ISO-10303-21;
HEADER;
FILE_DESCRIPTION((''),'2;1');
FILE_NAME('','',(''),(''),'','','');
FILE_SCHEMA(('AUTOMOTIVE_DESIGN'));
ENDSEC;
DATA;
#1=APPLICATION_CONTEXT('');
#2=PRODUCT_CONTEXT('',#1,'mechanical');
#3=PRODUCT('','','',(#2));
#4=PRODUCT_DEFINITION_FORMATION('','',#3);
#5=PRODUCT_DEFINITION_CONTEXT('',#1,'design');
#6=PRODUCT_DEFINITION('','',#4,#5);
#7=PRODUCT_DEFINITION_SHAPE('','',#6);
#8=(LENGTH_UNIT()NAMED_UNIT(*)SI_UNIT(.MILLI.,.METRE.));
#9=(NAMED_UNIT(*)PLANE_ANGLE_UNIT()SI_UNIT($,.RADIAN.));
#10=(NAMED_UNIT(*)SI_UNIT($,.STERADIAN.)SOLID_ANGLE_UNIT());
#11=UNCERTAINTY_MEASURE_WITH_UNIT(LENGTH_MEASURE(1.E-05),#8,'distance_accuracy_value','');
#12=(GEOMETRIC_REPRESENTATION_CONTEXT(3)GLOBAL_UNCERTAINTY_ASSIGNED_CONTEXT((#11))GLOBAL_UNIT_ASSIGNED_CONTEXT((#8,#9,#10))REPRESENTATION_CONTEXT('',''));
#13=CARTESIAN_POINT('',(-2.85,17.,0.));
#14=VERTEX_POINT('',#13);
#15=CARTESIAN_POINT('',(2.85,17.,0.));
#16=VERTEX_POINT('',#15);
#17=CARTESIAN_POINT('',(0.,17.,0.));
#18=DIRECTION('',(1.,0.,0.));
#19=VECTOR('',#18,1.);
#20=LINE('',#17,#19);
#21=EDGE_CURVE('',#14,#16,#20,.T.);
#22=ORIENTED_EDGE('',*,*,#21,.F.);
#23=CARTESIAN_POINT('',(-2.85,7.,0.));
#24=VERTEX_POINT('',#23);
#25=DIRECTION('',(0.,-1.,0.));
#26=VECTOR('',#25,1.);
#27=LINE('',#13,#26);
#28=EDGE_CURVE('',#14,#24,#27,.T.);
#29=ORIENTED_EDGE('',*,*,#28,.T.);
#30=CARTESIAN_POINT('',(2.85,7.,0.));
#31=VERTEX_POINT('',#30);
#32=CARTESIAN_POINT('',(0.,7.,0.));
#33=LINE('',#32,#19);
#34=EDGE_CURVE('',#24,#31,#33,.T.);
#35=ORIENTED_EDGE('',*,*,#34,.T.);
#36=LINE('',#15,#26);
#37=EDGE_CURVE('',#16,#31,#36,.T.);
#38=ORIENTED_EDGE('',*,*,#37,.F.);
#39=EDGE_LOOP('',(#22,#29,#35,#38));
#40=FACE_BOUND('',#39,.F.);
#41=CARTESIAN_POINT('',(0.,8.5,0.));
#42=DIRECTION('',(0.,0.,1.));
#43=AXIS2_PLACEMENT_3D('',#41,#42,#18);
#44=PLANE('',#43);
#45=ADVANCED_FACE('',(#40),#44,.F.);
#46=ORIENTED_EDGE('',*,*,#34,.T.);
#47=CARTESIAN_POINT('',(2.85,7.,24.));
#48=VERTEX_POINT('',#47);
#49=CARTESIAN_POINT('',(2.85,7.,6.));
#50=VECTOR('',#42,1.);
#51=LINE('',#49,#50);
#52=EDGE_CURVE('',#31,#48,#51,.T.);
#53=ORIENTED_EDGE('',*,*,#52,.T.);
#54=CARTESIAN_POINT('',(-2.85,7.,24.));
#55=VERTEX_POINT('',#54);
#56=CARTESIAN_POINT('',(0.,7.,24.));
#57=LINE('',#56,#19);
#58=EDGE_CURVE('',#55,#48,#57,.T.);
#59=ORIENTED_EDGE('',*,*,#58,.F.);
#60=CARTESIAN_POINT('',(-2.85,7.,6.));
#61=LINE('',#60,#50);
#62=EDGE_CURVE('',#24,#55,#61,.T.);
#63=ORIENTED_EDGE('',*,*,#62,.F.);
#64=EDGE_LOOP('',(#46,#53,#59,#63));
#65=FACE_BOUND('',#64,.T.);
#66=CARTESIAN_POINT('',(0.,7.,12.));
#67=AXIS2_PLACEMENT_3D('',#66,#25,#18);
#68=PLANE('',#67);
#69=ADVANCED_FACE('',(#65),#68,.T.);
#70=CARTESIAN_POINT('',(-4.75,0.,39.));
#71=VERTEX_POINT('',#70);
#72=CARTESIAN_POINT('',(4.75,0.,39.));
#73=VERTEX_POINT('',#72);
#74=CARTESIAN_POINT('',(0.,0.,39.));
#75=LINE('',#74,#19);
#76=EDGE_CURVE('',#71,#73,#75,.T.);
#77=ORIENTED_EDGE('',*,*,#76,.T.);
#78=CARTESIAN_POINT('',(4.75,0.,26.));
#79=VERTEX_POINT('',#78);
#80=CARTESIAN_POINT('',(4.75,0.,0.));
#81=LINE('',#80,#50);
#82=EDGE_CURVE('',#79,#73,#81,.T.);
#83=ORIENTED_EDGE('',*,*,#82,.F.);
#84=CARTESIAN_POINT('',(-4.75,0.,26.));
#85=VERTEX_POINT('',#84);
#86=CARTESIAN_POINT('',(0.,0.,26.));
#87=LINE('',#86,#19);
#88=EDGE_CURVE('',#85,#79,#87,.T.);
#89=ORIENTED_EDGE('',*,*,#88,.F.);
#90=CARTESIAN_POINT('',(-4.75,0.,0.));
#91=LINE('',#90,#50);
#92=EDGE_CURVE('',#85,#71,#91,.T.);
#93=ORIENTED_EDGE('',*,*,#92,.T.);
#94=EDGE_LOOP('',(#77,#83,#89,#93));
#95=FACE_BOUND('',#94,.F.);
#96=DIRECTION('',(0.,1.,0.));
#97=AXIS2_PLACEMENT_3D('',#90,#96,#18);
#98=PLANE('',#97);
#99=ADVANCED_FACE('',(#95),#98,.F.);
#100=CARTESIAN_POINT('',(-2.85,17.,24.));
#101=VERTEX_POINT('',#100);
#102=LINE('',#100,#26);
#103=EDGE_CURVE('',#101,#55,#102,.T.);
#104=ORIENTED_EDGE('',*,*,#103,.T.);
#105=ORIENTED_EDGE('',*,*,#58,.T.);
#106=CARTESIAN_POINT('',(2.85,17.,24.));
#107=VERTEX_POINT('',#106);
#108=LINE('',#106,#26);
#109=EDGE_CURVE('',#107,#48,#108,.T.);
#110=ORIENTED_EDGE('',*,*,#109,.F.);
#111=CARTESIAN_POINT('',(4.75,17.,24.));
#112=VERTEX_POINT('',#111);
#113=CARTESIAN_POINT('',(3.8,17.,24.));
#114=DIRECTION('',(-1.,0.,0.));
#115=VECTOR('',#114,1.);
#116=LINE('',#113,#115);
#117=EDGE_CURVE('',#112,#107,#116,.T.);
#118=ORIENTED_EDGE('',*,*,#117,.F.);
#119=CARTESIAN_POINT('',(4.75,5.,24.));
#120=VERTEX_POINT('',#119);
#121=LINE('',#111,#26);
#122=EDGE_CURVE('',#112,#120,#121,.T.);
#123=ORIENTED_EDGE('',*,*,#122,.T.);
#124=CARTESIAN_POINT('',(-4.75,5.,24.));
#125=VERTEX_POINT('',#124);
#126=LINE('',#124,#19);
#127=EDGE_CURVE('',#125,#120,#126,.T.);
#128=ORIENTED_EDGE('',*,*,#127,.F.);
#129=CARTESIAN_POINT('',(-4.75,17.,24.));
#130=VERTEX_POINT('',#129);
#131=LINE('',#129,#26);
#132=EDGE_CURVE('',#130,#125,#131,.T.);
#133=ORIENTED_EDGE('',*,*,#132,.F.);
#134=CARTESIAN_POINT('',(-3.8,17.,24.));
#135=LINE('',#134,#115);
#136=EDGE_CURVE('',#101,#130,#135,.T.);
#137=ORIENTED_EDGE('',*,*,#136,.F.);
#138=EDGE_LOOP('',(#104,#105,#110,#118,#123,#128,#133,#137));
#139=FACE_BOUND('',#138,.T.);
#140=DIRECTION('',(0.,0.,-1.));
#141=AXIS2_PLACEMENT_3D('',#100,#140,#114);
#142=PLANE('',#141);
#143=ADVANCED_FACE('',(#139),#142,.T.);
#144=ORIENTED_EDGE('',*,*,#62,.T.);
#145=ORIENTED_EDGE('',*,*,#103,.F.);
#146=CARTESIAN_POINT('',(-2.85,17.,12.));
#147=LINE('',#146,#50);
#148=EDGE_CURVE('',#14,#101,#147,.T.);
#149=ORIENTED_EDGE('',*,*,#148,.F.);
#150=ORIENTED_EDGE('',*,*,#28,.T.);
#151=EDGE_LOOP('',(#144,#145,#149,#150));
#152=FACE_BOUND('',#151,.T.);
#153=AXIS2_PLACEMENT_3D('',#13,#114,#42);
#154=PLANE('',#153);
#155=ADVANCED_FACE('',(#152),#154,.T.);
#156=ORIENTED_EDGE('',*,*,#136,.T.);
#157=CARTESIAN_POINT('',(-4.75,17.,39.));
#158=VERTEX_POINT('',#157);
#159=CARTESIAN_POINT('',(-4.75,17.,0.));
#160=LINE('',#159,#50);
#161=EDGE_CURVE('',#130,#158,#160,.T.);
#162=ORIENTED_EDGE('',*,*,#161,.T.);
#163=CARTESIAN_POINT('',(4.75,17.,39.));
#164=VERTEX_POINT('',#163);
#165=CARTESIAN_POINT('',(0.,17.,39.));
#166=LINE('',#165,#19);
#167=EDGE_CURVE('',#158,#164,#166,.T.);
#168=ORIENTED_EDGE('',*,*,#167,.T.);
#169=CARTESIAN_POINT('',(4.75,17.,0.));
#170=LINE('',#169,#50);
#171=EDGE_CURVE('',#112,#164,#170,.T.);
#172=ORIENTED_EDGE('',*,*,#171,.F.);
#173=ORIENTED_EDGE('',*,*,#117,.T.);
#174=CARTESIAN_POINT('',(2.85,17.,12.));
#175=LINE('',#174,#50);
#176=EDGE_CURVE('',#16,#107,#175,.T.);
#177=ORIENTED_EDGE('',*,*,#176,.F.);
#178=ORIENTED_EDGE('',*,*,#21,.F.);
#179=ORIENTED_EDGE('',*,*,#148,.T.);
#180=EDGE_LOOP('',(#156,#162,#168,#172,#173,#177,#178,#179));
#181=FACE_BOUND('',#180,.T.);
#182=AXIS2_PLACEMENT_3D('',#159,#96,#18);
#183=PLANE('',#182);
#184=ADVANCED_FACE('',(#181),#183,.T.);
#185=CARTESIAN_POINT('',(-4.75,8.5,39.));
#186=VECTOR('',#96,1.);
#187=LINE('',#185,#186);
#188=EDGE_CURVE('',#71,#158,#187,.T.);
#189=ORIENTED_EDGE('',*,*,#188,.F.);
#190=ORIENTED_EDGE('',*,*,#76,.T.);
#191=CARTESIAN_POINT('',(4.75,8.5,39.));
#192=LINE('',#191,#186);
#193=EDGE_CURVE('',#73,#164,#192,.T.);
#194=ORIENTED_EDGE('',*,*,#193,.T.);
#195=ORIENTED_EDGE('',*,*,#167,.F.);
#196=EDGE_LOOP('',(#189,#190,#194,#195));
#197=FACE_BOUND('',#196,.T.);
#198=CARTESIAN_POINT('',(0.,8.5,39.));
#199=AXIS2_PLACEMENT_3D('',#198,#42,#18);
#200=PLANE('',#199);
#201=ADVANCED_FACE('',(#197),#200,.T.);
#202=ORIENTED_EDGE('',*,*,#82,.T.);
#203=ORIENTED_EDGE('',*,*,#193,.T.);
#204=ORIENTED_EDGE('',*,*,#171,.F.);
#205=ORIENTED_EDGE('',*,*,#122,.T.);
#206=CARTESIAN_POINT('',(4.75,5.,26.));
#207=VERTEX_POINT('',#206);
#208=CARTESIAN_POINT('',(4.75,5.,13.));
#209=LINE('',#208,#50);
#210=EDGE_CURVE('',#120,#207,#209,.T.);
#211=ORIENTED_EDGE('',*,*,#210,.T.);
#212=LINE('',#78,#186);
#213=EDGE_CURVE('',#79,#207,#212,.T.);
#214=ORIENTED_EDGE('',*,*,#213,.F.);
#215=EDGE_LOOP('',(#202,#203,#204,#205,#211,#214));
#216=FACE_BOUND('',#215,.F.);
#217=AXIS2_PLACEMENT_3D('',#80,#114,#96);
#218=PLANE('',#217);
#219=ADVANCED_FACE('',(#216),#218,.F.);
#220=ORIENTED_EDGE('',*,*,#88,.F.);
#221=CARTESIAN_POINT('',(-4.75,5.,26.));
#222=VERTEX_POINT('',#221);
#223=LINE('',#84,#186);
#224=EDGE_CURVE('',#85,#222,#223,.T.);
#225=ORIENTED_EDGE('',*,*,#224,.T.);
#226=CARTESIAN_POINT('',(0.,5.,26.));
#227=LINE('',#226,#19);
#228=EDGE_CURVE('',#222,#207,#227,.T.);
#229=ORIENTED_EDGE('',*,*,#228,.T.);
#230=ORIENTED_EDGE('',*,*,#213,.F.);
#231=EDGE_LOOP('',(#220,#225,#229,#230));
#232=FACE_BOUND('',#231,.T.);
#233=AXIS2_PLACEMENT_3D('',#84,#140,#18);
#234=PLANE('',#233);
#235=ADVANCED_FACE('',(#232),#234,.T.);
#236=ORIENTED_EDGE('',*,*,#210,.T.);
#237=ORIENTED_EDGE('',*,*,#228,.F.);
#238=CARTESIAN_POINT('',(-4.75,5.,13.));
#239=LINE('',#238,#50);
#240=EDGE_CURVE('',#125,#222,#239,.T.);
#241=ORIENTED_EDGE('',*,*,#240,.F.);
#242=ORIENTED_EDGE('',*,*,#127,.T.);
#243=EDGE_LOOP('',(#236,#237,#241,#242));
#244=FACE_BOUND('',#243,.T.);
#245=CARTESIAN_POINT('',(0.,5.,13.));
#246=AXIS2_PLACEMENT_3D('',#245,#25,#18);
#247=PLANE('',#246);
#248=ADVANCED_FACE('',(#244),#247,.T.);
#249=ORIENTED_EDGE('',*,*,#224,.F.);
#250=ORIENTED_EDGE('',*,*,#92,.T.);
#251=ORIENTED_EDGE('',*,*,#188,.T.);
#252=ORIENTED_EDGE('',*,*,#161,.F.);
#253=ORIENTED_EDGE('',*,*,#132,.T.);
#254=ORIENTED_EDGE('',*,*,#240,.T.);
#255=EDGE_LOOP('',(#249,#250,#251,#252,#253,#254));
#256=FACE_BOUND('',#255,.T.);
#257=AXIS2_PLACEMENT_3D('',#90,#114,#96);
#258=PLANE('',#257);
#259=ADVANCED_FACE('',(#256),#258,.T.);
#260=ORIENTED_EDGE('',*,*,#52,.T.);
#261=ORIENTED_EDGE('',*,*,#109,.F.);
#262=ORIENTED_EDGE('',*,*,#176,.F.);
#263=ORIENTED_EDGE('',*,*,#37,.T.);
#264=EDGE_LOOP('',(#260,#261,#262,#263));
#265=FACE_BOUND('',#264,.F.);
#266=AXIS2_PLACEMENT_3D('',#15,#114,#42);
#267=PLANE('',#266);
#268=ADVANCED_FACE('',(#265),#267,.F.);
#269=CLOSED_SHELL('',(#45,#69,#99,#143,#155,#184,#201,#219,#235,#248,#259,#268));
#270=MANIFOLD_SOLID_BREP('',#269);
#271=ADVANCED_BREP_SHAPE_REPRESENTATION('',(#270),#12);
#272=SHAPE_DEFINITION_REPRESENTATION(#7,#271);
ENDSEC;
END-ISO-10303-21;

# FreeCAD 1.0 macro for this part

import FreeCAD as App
import Part
import Sketcher
from FreeCAD import Vector
Q = App.Units.Quantity


def add_polygon(sketch, points):
    """Adds a closed chain of lines whose ends are joined by coincident constraints."""
    first, n = sketch.GeometryCount, len(points)
    for a, b in zip(points, points[1:] + points[:1]):
        sketch.addGeometry(Part.LineSegment(App.Vector(*a, 0), App.Vector(*b, 0)), False)
    for i in range(n):
        sketch.addConstraint(Sketcher.Constraint("Coincident", first + i, 2, first + (i + 1) % n, 1))

doc = App.newDocument("Part")
params = doc.addObject("Spreadsheet::Sheet", "Params")
for row, (alias, value) in enumerate([
    ("sketch1_height", "17 mm"),
    ("sketch1_width", "9.5 mm"),
    ("pad1_length", "39 mm"),
    ("sketch2_height", "26 mm"),
    ("sketch2_width", "9.5 mm"),
    ("pocket1_length", "5 mm"),
    ("sketch3_height", "24 mm"),
    ("sketch3_width", "1.9 mm"),
    ("pocket2_length", "17 mm"),
    ("sketch4_height", "24 mm"),
    ("sketch4_width", "9.5 mm"),
    ("pocket3_length", "7 mm"),
], start=1):
    params.set(f"A{row}", alias)
    params.set(f"B{row}", "=" + value)
    params.setAlias(f"B{row}", alias)

body = doc.addObject("PartDesign::Body", "Body")

# Sketch on XY plane
sketch1 = body.newObject("Sketcher::SketchObject", "Sketch")
sketch1.AttachmentSupport = (doc.getObject("XY_Plane"), [""])
sketch1.MapMode = "FlatFace"
add_polygon(sketch1, [(-4.75, 17), (-4.75, 0), (4.75, 0), (4.75, 17)])  # lines 0-3
sketch1.addConstraint(Sketcher.Constraint("Vertical", 0))
sketch1.addConstraint(Sketcher.Constraint("Horizontal", 1))
sketch1.addConstraint(Sketcher.Constraint("Vertical", 2))
sketch1.addConstraint(Sketcher.Constraint("Horizontal", 3))
sketch1.addConstraint(Sketcher.Constraint("Symmetric", 0, 2, 1, 2, -1, 1))
sketch1.addConstraint(Sketcher.Constraint("DistanceY", 0, 2, 0, 1, Q("17 mm")))
sketch1.addConstraint(Sketcher.Constraint("DistanceX", 1, 1, 1, 2, Q("9.5 mm")))
sketch1.setExpression("Constraints[9]", "Params.sketch1_height")
sketch1.setExpression("Constraints[10]", "Params.sketch1_width")
pad1 = body.newObject("PartDesign::Pad", "Pad")
pad1.Profile = sketch1
pad1.setExpression("Length", "Params.pad1_length")

# Sketch on XZ plane
sketch2 = body.newObject("Sketcher::SketchObject", "Sketch001")
sketch2.AttachmentSupport = (doc.getObject("XZ_Plane"), [""])
sketch2.MapMode = "FlatFace"
add_polygon(sketch2, [(-4.75, 26), (-4.75, 0), (4.75, 0), (4.75, 26)])  # lines 0-3
sketch2.addConstraint(Sketcher.Constraint("Vertical", 0))
sketch2.addConstraint(Sketcher.Constraint("Horizontal", 1))
sketch2.addConstraint(Sketcher.Constraint("Vertical", 2))
sketch2.addConstraint(Sketcher.Constraint("Horizontal", 3))
sketch2.addConstraint(Sketcher.Constraint("Symmetric", 0, 2, 1, 2, -1, 1))
sketch2.addConstraint(Sketcher.Constraint("DistanceY", 0, 2, 0, 1, Q("26 mm")))
sketch2.addConstraint(Sketcher.Constraint("DistanceX", 1, 1, 1, 2, Q("9.5 mm")))
sketch2.setExpression("Constraints[9]", "Params.sketch2_height")
sketch2.setExpression("Constraints[10]", "Params.sketch2_width")
pocket1 = body.newObject("PartDesign::Pocket", "Pocket")
pocket1.Profile = sketch2
pocket1.setExpression("Length", "Params.pocket1_length")

# Sketch on XZ plane
sketch3 = body.newObject("Sketcher::SketchObject", "Sketch002")
sketch3.AttachmentSupport = (doc.getObject("XZ_Plane"), [""])
sketch3.MapMode = "FlatFace"
sketch3.AttachmentOffset = App.Placement(Vector(0, 0, -17), App.Rotation())
add_polygon(sketch3, [(4.75, 24), (4.75, 0), (2.85, 0), (2.85, 24)])  # lines 0-3
add_polygon(sketch3, [(-2.85, 24), (-2.85, 0), (-4.75, 0), (-4.75, 24)])  # lines 4-7
sketch3.addConstraint(Sketcher.Constraint("Vertical", 0))
sketch3.addConstraint(Sketcher.Constraint("Horizontal", 1))
sketch3.addConstraint(Sketcher.Constraint("Vertical", 2))
sketch3.addConstraint(Sketcher.Constraint("Horizontal", 3))
sketch3.addConstraint(Sketcher.Constraint("Vertical", 4))
sketch3.addConstraint(Sketcher.Constraint("Horizontal", 5))
sketch3.addConstraint(Sketcher.Constraint("Vertical", 6))
sketch3.addConstraint(Sketcher.Constraint("Horizontal", 7))
sketch3.addConstraint(Sketcher.Constraint("Symmetric", 1, 2, 4, 2, -1, 1))
sketch3.addConstraint(Sketcher.Constraint("Symmetric", 0, 2, 5, 2, -2))
sketch3.addConstraint(Sketcher.Constraint("Horizontal", 3, 2, 6, 2))
sketch3.addConstraint(Sketcher.Constraint("DistanceY", 0, 2, 0, 1, Q("24 mm")))
sketch3.addConstraint(Sketcher.Constraint("DistanceX", 1, 2, 1, 1, Q("1.9 mm")))
sketch3.addConstraint(Sketcher.Constraint("DistanceX", 4, 2, 1, 2, Q("5.7 mm")))
sketch3.setExpression("Constraints[19]", "Params.sketch3_height")
sketch3.setExpression("Constraints[20]", "Params.sketch3_width")
pocket2 = body.newObject("PartDesign::Pocket", "Pocket001")
pocket2.Profile = sketch3
pocket2.setExpression("Length", "Params.pocket2_length")
pocket2.Reversed = True

# Sketch on XZ plane
sketch4 = body.newObject("Sketcher::SketchObject", "Sketch003")
sketch4.AttachmentSupport = (doc.getObject("XZ_Plane"), [""])
sketch4.MapMode = "FlatFace"
add_polygon(sketch4, [(-4.75, 24), (-4.75, 0), (4.75, 0), (4.75, 24)])  # lines 0-3
sketch4.addConstraint(Sketcher.Constraint("Vertical", 0))
sketch4.addConstraint(Sketcher.Constraint("Horizontal", 1))
sketch4.addConstraint(Sketcher.Constraint("Vertical", 2))
sketch4.addConstraint(Sketcher.Constraint("Horizontal", 3))
sketch4.addConstraint(Sketcher.Constraint("Symmetric", 0, 2, 1, 2, -1, 1))
sketch4.addConstraint(Sketcher.Constraint("DistanceY", 0, 2, 0, 1, Q("24 mm")))
sketch4.addConstraint(Sketcher.Constraint("DistanceX", 1, 1, 1, 2, Q("9.5 mm")))
sketch4.setExpression("Constraints[9]", "Params.sketch4_height")
sketch4.setExpression("Constraints[10]", "Params.sketch4_width")
pocket3 = body.newObject("PartDesign::Pocket", "Pocket002")
pocket3.Profile = sketch4
pocket3.setExpression("Length", "Params.pocket3_length")

doc.recompute()
